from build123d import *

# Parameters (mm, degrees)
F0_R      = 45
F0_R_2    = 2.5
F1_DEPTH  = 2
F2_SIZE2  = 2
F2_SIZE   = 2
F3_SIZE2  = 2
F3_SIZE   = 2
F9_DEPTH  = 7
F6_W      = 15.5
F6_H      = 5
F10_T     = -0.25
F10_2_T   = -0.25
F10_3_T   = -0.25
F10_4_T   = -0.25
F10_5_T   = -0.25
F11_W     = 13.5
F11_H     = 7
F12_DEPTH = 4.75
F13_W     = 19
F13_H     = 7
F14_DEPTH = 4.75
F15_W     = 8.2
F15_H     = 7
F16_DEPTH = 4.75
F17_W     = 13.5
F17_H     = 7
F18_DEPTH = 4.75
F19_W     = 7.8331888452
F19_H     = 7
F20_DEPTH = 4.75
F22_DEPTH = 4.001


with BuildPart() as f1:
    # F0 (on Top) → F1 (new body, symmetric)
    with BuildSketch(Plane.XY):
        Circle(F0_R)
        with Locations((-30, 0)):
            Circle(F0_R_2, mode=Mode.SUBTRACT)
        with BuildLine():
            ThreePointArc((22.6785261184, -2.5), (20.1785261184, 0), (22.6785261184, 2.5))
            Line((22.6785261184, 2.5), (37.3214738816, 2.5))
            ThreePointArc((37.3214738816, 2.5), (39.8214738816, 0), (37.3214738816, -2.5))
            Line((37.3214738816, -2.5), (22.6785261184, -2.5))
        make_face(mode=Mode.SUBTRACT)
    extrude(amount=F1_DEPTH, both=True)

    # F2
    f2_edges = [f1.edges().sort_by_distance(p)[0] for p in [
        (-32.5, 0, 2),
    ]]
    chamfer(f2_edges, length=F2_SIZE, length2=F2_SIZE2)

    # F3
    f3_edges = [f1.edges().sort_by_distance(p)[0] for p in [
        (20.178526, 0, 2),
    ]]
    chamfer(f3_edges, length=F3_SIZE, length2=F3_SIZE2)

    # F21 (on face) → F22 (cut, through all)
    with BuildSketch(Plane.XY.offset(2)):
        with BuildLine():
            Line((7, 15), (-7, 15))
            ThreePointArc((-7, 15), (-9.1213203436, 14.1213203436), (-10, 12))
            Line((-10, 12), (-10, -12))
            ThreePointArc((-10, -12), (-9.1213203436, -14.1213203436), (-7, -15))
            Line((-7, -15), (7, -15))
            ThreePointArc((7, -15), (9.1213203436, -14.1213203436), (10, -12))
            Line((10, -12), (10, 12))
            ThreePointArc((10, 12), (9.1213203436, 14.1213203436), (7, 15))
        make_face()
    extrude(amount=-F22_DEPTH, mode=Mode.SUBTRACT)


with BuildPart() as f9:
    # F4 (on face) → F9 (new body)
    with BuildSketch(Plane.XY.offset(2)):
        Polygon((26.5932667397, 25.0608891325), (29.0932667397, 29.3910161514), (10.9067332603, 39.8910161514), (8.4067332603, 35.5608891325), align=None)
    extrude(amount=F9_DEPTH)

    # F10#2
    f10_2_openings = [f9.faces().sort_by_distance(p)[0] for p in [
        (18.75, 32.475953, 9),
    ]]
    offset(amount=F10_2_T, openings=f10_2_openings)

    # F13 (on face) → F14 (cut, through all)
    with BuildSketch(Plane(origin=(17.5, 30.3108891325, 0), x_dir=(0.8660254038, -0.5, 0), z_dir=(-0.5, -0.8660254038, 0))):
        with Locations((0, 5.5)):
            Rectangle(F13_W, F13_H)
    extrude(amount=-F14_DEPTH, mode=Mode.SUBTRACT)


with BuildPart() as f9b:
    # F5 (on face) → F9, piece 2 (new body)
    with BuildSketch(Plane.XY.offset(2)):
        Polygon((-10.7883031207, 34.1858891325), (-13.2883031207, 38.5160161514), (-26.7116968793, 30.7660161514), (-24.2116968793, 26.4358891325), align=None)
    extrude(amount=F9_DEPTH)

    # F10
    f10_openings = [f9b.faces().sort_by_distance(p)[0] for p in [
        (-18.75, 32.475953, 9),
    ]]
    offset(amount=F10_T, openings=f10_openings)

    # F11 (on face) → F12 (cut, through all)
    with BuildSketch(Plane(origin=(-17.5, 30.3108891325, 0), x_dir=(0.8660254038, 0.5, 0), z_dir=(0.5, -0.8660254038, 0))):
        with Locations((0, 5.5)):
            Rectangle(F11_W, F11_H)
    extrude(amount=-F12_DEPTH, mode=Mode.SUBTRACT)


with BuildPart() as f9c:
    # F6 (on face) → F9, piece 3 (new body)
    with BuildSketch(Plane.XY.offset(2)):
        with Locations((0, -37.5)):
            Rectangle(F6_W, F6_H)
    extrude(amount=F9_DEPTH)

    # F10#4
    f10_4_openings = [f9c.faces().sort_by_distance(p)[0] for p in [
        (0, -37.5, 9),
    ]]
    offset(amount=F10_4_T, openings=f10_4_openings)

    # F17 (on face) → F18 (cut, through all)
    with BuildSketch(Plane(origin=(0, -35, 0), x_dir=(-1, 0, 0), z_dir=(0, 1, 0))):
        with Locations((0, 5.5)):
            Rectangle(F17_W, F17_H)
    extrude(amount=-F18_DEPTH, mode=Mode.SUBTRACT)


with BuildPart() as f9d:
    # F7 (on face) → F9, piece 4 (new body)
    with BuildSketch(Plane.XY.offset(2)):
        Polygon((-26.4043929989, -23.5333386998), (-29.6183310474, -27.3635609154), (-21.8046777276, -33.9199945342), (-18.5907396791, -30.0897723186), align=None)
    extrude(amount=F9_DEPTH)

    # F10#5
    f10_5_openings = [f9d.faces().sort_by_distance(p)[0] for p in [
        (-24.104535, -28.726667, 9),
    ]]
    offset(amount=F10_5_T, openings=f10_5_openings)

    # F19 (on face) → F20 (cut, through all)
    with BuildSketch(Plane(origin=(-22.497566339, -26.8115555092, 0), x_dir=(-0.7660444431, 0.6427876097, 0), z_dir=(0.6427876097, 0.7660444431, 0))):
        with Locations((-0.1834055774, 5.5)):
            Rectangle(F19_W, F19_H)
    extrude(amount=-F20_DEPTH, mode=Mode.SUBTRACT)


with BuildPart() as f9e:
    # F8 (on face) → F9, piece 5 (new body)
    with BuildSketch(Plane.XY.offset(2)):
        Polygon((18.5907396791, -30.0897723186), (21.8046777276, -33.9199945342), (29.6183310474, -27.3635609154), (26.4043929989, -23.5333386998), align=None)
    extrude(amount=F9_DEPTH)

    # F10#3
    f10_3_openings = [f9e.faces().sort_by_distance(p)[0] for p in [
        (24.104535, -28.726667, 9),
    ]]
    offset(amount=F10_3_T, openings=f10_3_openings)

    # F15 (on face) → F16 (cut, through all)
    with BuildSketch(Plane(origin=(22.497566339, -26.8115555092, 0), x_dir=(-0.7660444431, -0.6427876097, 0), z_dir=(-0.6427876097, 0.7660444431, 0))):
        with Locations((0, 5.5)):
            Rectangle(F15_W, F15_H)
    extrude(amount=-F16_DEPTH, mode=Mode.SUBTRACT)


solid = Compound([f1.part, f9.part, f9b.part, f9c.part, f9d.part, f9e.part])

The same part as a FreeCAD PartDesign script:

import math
import FreeCAD as App
import Part
import Sketcher
from FreeCAD import Vector
Q = App.Units.Quantity


def edges_at(feature, points):
    """Names of the edges that pass closest to the given points."""
    edges = feature.Shape.Edges
    near = lambda p: min(range(len(edges)), key=lambda i: edges[i].distToShape(Part.Vertex(*p))[0])
    return sorted({f"Edge{near(p) + 1}" for p in points})


def faces_at(feature, points):
    """Names of the faces that lie closest to the given points."""
    faces = feature.Shape.Faces
    near = lambda p: min(range(len(faces)), key=lambda i: faces[i].distToShape(Part.Vertex(*p))[0])
    return sorted({f"Face{near(p) + 1}" for p in points})

doc = App.newDocument("Part")
body = doc.addObject("PartDesign::Body", "Body")

# Sketch on XY plane
sketch1 = body.newObject("Sketcher::SketchObject", "Sketch")
sketch1.AttachmentSupport = (doc.getObject("XY_Plane"), [""])
sketch1.MapMode = "FlatFace"
sketch1.addGeometry(Part.Circle(Vector(0, 0, 0), Vector(0, 0, 1), 45), False)
sketch1.addGeometry(Part.Circle(Vector(-30, 0, 0), Vector(0, 0, 1), 2.5), False)
sketch1.addGeometry(Part.LineSegment(Vector(37.3, -2.5, 0), Vector(22.7, -2.5, 0)), False)
sketch1.addGeometry(Part.ArcOfCircle(Part.Circle(Vector(22.7, 0, 0), Vector(0, 0, 1), 2.5), math.radians(90), math.radians(270)), False)
sketch1.addGeometry(Part.LineSegment(Vector(22.7, 2.5, 0), Vector(37.3, 2.5, 0)), False)
sketch1.addGeometry(Part.ArcOfCircle(Part.Circle(Vector(37.3, 0, 0), Vector(0, 0, 1), 2.5), math.radians(-90), math.radians(90)), False)
sketch1.addConstraint(Sketcher.Constraint("Tangent", 2, 2, 3, 2))
sketch1.addConstraint(Sketcher.Constraint("Tangent", 3, 1, 4, 1))
sketch1.addConstraint(Sketcher.Constraint("Tangent", 4, 2, 5, 2))
sketch1.addConstraint(Sketcher.Constraint("Tangent", 5, 1, 2, 1))
sketch1.addConstraint(Sketcher.Constraint("Horizontal", 2))
sketch1.addConstraint(Sketcher.Constraint("Horizontal", 4))
sketch1.addConstraint(Sketcher.Constraint("Coincident", 0, 3, -1, 1))
sketch1.addConstraint(Sketcher.Constraint("Equal", 1, 3))
sketch1.addConstraint(Sketcher.Constraint("PointOnObject", 1, 3, -1))
sketch1.addConstraint(Sketcher.Constraint("PointOnObject", 3, 3, -1))
sketch1.addConstraint(Sketcher.Constraint("Diameter", 0, Q("90 mm")))
sketch1.addConstraint(Sketcher.Constraint("Diameter", 1, Q("5 mm")))
sketch1.addConstraint(Sketcher.Constraint("DistanceX", 1, 3, -1, 1, Q("30 mm")))
sketch1.addConstraint(Sketcher.Constraint("DistanceX", 2, 2, 2, 1, Q("14.642948 mm")))
sketch1.addConstraint(Sketcher.Constraint("DistanceX", -1, 1, 3, 3, Q("22.678526 mm")))
pad1 = body.newObject("PartDesign::Pad", "Pad")
pad1.Profile = sketch1
pad1.Length = 4
pad1.Midplane = True
doc.recompute()

chamfer = body.newObject("PartDesign::Chamfer", "Chamfer")
chamfer.Base = (pad1, edges_at(pad1, [(-32.5, 0, 2)]))
chamfer.ChamferType = "Two distances"
chamfer.Size = 2
chamfer.Size2 = 2
doc.recompute()

chamfer2 = body.newObject("PartDesign::Chamfer", "Chamfer001")
chamfer2.Base = (chamfer, edges_at(chamfer, [(20.179, 0, 2)]))
chamfer2.ChamferType = "Two distances"
chamfer2.Size = 2
chamfer2.Size2 = 2

# Sketch on XY plane
sketch2 = body.newObject("Sketcher::SketchObject", "Sketch001")
sketch2.AttachmentSupport = (doc.getObject("XY_Plane"), [""])
sketch2.MapMode = "FlatFace"
sketch2.AttachmentOffset = App.Placement(Vector(0, 0, 2), App.Rotation())
sketch2.addGeometry(Part.LineSegment(Vector(7, 15, 0), Vector(-7, 15, 0)), False)
sketch2.addGeometry(Part.ArcOfCircle(Part.Circle(Vector(-7, 12, 0), Vector(0, 0, 1), 3), math.radians(90), math.radians(180)), False)
sketch2.addGeometry(Part.LineSegment(Vector(-10, 12, 0), Vector(-10, -12, 0)), False)
sketch2.addGeometry(Part.ArcOfCircle(Part.Circle(Vector(-7, -12, 0), Vector(0, 0, 1), 3), math.radians(180), math.radians(270)), False)
sketch2.addGeometry(Part.LineSegment(Vector(-7, -15, 0), Vector(7, -15, 0)), False)
sketch2.addGeometry(Part.ArcOfCircle(Part.Circle(Vector(7, -12, 0), Vector(0, 0, 1), 3), math.radians(-90), math.radians(0)), False)
sketch2.addGeometry(Part.LineSegment(Vector(10, -12, 0), Vector(10, 12, 0)), False)
sketch2.addGeometry(Part.ArcOfCircle(Part.Circle(Vector(7, 12, 0), Vector(0, 0, 1), 3), math.radians(0), math.radians(90)), False)
sketch2.addConstraint(Sketcher.Constraint("Tangent", 0, 2, 1, 1))
sketch2.addConstraint(Sketcher.Constraint("Tangent", 1, 2, 2, 1))
sketch2.addConstraint(Sketcher.Constraint("Tangent", 2, 2, 3, 1))
sketch2.addConstraint(Sketcher.Constraint("Tangent", 3, 2, 4, 1))
sketch2.addConstraint(Sketcher.Constraint("Tangent", 4, 2, 5, 1))
sketch2.addConstraint(Sketcher.Constraint("Tangent", 5, 2, 6, 1))
sketch2.addConstraint(Sketcher.Constraint("Tangent", 6, 2, 7, 1))
sketch2.addConstraint(Sketcher.Constraint("Tangent", 7, 2, 0, 1))
sketch2.addConstraint(Sketcher.Constraint("Horizontal", 0))
sketch2.addConstraint(Sketcher.Constraint("Vertical", 2))
sketch2.addConstraint(Sketcher.Constraint("Horizontal", 4))
sketch2.addConstraint(Sketcher.Constraint("Vertical", 6))
sketch2.addConstraint(Sketcher.Constraint("Equal", 1, 3))
sketch2.addConstraint(Sketcher.Constraint("Equal", 3, 5))
sketch2.addConstraint(Sketcher.Constraint("Equal", 5, 7))
sketch2.addConstraint(Sketcher.Constraint("Symmetric", 1, 3, 5, 3, -1, 1))
sketch2.addConstraint(Sketcher.Constraint("Radius", 1, Q("3 mm")))
sketch2.addConstraint(Sketcher.Constraint("DistanceX", 0, 2, 0, 1, Q("14 mm")))
sketch2.addConstraint(Sketcher.Constraint("DistanceY", 2, 2, 2, 1, Q("24 mm")))
pocket1 = body.newObject("PartDesign::Pocket", "Pocket")
pocket1.Profile = sketch2
pocket1.Type = "ThroughAll"
body2 = doc.addObject("PartDesign::Body", "Body001")

# Sketch on XY plane
sketch3 = body2.newObject("Sketcher::SketchObject", "Sketch002")
sketch3.AttachmentSupport = (doc.getObject("XY_Plane001"), [""])
sketch3.MapMode = "FlatFace"
sketch3.AttachmentOffset = App.Placement(Vector(0, 0, 2), App.Rotation())
sketch3.addGeometry(Part.LineSegment(Vector(26.6, 25.1, 0), Vector(29.1, 29.4, 0)), False)
sketch3.addGeometry(Part.LineSegment(Vector(29.1, 29.4, 0), Vector(10.9, 39.9, 0)), False)
sketch3.addGeometry(Part.LineSegment(Vector(10.9, 39.9, 0), Vector(8.4, 35.6, 0)), False)
sketch3.addGeometry(Part.LineSegment(Vector(8.4, 35.6, 0), Vector(26.6, 25.1, 0)), False)
sketch3.addConstraint(Sketcher.Constraint("Coincident", 0, 2, 1, 1))
sketch3.addConstraint(Sketcher.Constraint("Coincident", 1, 2, 2, 1))
sketch3.addConstraint(Sketcher.Constraint("Coincident", 2, 2, 3, 1))
sketch3.addConstraint(Sketcher.Constraint("Coincident", 3, 2, 0, 1))
sketch3.addConstraint(Sketcher.Constraint("Perpendicular", 0, 1))
sketch3.addConstraint(Sketcher.Constraint("Perpendicular", 1, 2))
sketch3.addConstraint(Sketcher.Constraint("Perpendicular", 2, 3))
sketch3.addConstraint(Sketcher.Constraint("Angle", 0, Q("60 deg")))
sketch3.addConstraint(Sketcher.Constraint("Distance", 0, Q("5 mm")))
sketch3.addConstraint(Sketcher.Constraint("Distance", 1, Q("21 mm")))
sketch3.addConstraint(Sketcher.Constraint("DistanceY", -1, 1, 2, 2, Q("35.560889 mm")))
sketch3.addConstraint(Sketcher.Constraint("DistanceX", -1, 1, 0, 2, Q("29.093267 mm")))
pad2 = body2.newObject("PartDesign::Pad", "Pad001")
pad2.Profile = sketch3
pad2.Length = 7
doc.recompute()

thickness = body2.newObject("PartDesign::Thickness", "Thickness")
thickness.Base = (pad2, faces_at(pad2, [(18.75, 32.476, 9)]))
thickness.Value = 0.25
thickness.Reversed = True
thickness.Join = "Arc"

# Sketch on an angled plane
sketch4 = body2.newObject("Sketcher::SketchObject", "Sketch003")
sketch4.Placement = App.Placement(Vector(17.5, 30.310889, 0), App.Rotation(Vector(0.866025404, -0.5, 0), Vector(0, 0, 1), Vector(-0.5, -0.866025404, 0), "ZXY"))
sketch4.addGeometry(Part.LineSegment(Vector(-10, 9, 0), Vector(-10, 2, 0)), False)
sketch4.addGeometry(Part.LineSegment(Vector(-10, 2, 0), Vector(10, 2, 0)), False)
sketch4.addGeometry(Part.LineSegment(Vector(10, 2, 0), Vector(10, 9, 0)), False)
sketch4.addGeometry(Part.LineSegment(Vector(10, 9, 0), Vector(-10, 9, 0)), False)
sketch4.addConstraint(Sketcher.Constraint("Coincident", 0, 2, 1, 1))
sketch4.addConstraint(Sketcher.Constraint("Coincident", 1, 2, 2, 1))
sketch4.addConstraint(Sketcher.Constraint("Coincident", 2, 2, 3, 1))
sketch4.addConstraint(Sketcher.Constraint("Coincident", 3, 2, 0, 1))
sketch4.addConstraint(Sketcher.Constraint("Vertical", 0))
sketch4.addConstraint(Sketcher.Constraint("Horizontal", 1))
sketch4.addConstraint(Sketcher.Constraint("Vertical", 2))
sketch4.addConstraint(Sketcher.Constraint("Horizontal", 3))
sketch4.addConstraint(Sketcher.Constraint("DistanceX", 1, 1, 1, 2, Q("19 mm")))
sketch4.addConstraint(Sketcher.Constraint("DistanceY", 0, 2, 0, 1, Q("7 mm")))
sketch4.addConstraint(Sketcher.Constraint("DistanceY", -1, 1, 0, 2, Q("2 mm")))
sketch4.addConstraint(Sketcher.Constraint("DistanceX", 0, 2, -1, 1, Q("9.5 mm")))
pocket2 = body2.newObject("PartDesign::Pocket", "Pocket001")
pocket2.Profile = sketch4
pocket2.Length = 4.75
body3 = doc.addObject("PartDesign::Body", "Body002")

# Sketch on XY plane
sketch5 = body3.newObject("Sketcher::SketchObject", "Sketch004")
sketch5.AttachmentSupport = (doc.getObject("XY_Plane002"), [""])
sketch5.MapMode = "FlatFace"
sketch5.AttachmentOffset = App.Placement(Vector(0, 0, 2), App.Rotation())
sketch5.addGeometry(Part.LineSegment(Vector(-10.8, 34.2, 0), Vector(-13.3, 38.5, 0)), False)
sketch5.addGeometry(Part.LineSegment(Vector(-13.3, 38.5, 0), Vector(-26.7, 30.8, 0)), False)
sketch5.addGeometry(Part.LineSegment(Vector(-26.7, 30.8, 0), Vector(-24.2, 26.4, 0)), False)
sketch5.addGeometry(Part.LineSegment(Vector(-24.2, 26.4, 0), Vector(-10.8, 34.2, 0)), False)
sketch5.addConstraint(Sketcher.Constraint("Coincident", 0, 2, 1, 1))
sketch5.addConstraint(Sketcher.Constraint("Coincident", 1, 2, 2, 1))
sketch5.addConstraint(Sketcher.Constraint("Coincident", 2, 2, 3, 1))
sketch5.addConstraint(Sketcher.Constraint("Coincident", 3, 2, 0, 1))
sketch5.addConstraint(Sketcher.Constraint("Perpendicular", 0, 1))
sketch5.addConstraint(Sketcher.Constraint("Perpendicular", 1, 2))
sketch5.addConstraint(Sketcher.Constraint("Perpendicular", 2, 3))
sketch5.addConstraint(Sketcher.Constraint("Angle", 0, Q("120 deg")))
sketch5.addConstraint(Sketcher.Constraint("Distance", 0, Q("5 mm")))
sketch5.addConstraint(Sketcher.Constraint("Distance", 1, Q("15.5 mm")))
sketch5.addConstraint(Sketcher.Constraint("DistanceY", -1, 1, 2, 2, Q("26.435889 mm")))
sketch5.addConstraint(Sketcher.Constraint("DistanceX", 0, 2, -1, 1, Q("13.288303 mm")))
pad3 = body3.newObject("PartDesign::Pad", "Pad002")
pad3.Profile = sketch5
pad3.Length = 7
doc.recompute()

thickness2 = body3.newObject("PartDesign::Thickness", "Thickness001")
thickness2.Base = (pad3, faces_at(pad3, [(-18.75, 32.476, 9)]))
thickness2.Value = 0.25
thickness2.Reversed = True
thickness2.Join = "Arc"

# Sketch on an angled plane
sketch6 = body3.newObject("Sketcher::SketchObject", "Sketch005")
sketch6.Placement = App.Placement(Vector(-17.5, 30.310889, 0), App.Rotation(Vector(0.866025404, 0.5, 0), Vector(0, 0, 1), Vector(0.5, -0.866025404, 0), "ZXY"))
sketch6.addGeometry(Part.LineSegment(Vector(-7, 9, 0), Vector(-7, 2, 0)), False)
sketch6.addGeometry(Part.LineSegment(Vector(-7, 2, 0), Vector(7, 2, 0)), False)
sketch6.addGeometry(Part.LineSegment(Vector(7, 2, 0), Vector(7, 9, 0)), False)
sketch6.addGeometry(Part.LineSegment(Vector(7, 9, 0), Vector(-7, 9, 0)), False)
sketch6.addConstraint(Sketcher.Constraint("Coincident", 0, 2, 1, 1))
sketch6.addConstraint(Sketcher.Constraint("Coincident", 1, 2, 2, 1))
sketch6.addConstraint(Sketcher.Constraint("Coincident", 2, 2, 3, 1))
sketch6.addConstraint(Sketcher.Constraint("Coincident", 3, 2, 0, 1))
sketch6.addConstraint(Sketcher.Constraint("Vertical", 0))
sketch6.addConstraint(Sketcher.Constraint("Horizontal", 1))
sketch6.addConstraint(Sketcher.Constraint("Vertical", 2))
sketch6.addConstraint(Sketcher.Constraint("Horizontal", 3))
sketch6.addConstraint(Sketcher.Constraint("DistanceY", 0, 2, 0, 1, Q("7 mm")))
sketch6.addConstraint(Sketcher.Constraint("DistanceX", 1, 1, 1, 2, Q("13.5 mm")))
sketch6.addConstraint(Sketcher.Constraint("DistanceY", -1, 1, 0, 2, Q("2 mm")))
sketch6.addConstraint(Sketcher.Constraint("DistanceX", 0, 2, -1, 1, Q("6.75 mm")))
pocket3 = body3.newObject("PartDesign::Pocket", "Pocket002")
pocket3.Profile = sketch6
pocket3.Length = 4.75
body4 = doc.addObject("PartDesign::Body", "Body003")

# Sketch on XY plane
sketch7 = body4.newObject("Sketcher::SketchObject", "Sketch006")
sketch7.AttachmentSupport = (doc.getObject("XY_Plane003"), [""])
sketch7.MapMode = "FlatFace"
sketch7.AttachmentOffset = App.Placement(Vector(0, 0, 2), App.Rotation())
sketch7.addGeometry(Part.LineSegment(Vector(-8, -35, 0), Vector(-8, -40, 0)), False)
sketch7.addGeometry(Part.LineSegment(Vector(-8, -40, 0), Vector(8, -40, 0)), False)
sketch7.addGeometry(Part.LineSegment(Vector(8, -40, 0), Vector(8, -35, 0)), False)
sketch7.addGeometry(Part.LineSegment(Vector(8, -35, 0), Vector(-8, -35, 0)), False)
sketch7.addConstraint(Sketcher.Constraint("Coincident", 0, 2, 1, 1))
sketch7.addConstraint(Sketcher.Constraint("Coincident", 1, 2, 2, 1))
sketch7.addConstraint(Sketcher.Constraint("Coincident", 2, 2, 3, 1))
sketch7.addConstraint(Sketcher.Constraint("Coincident", 3, 2, 0, 1))
sketch7.addConstraint(Sketcher.Constraint("Vertical", 0))
sketch7.addConstraint(Sketcher.Constraint("Horizontal", 1))
sketch7.addConstraint(Sketcher.Constraint("Vertical", 2))
sketch7.addConstraint(Sketcher.Constraint("Horizontal", 3))
sketch7.addConstraint(Sketcher.Constraint("DistanceY", 0, 2, 0, 1, Q("5 mm")))
sketch7.addConstraint(Sketcher.Constraint("DistanceX", 1, 1, 1, 2, Q("15.5 mm")))
sketch7.addConstraint(Sketcher.Constraint("DistanceY", 0, 2, -1, 1, Q("40 mm")))
sketch7.addConstraint(Sketcher.Constraint("DistanceX", 0, 2, -1, 1, Q("7.75 mm")))
pad4 = body4.newObject("PartDesign::Pad", "Pad003")
pad4.Profile = sketch7
pad4.Length = 7
doc.recompute()

thickness3 = body4.newObject("PartDesign::Thickness", "Thickness002")
thickness3.Base = (pad4, faces_at(pad4, [(0, -37.5, 9)]))
thickness3.Value = 0.25
thickness3.Reversed = True
thickness3.Join = "Arc"

# Sketch on XZ plane
sketch8 = body4.newObject("Sketcher::SketchObject", "Sketch007")
sketch8.AttachmentSupport = (doc.getObject("XZ_Plane003"), [""])
sketch8.MapMode = "FlatFace"
sketch8.AttachmentOffset = App.Placement(Vector(0, 0, 35), App.Rotation())
sketch8.addGeometry(Part.LineSegment(Vector(7, 9, 0), Vector(7, 2, 0)), False)
sketch8.addGeometry(Part.LineSegment(Vector(7, 2, 0), Vector(-7, 2, 0)), False)
sketch8.addGeometry(Part.LineSegment(Vector(-7, 2, 0), Vector(-7, 9, 0)), False)
sketch8.addGeometry(Part.LineSegment(Vector(-7, 9, 0), Vector(7, 9, 0)), False)
sketch8.addConstraint(Sketcher.Constraint("Coincident", 0, 2, 1, 1))
sketch8.addConstraint(Sketcher.Constraint("Coincident", 1, 2, 2, 1))
sketch8.addConstraint(Sketcher.Constraint("Coincident", 2, 2, 3, 1))
sketch8.addConstraint(Sketcher.Constraint("Coincident", 3, 2, 0, 1))
sketch8.addConstraint(Sketcher.Constraint("Vertical", 0))
sketch8.addConstraint(Sketcher.Constraint("Horizontal", 1))
sketch8.addConstraint(Sketcher.Constraint("Vertical", 2))
sketch8.addConstraint(Sketcher.Constraint("Horizontal", 3))
sketch8.addConstraint(Sketcher.Constraint("DistanceY", 0, 2, 0, 1, Q("7 mm")))
sketch8.addConstraint(Sketcher.Constraint("DistanceX", 1, 2, 1, 1, Q("13.5 mm")))
sketch8.addConstraint(Sketcher.Constraint("DistanceY", -1, 1, 0, 2, Q("2 mm")))
sketch8.addConstraint(Sketcher.Constraint("DistanceX", -1, 1, 0, 2, Q("6.75 mm")))
pocket4 = body4.newObject("PartDesign::Pocket", "Pocket003")
pocket4.Profile = sketch8
pocket4.Length = 4.75
pocket4.Reversed = True
body5 = doc.addObject("PartDesign::Body", "Body004")

# Sketch on XY plane
sketch9 = body5.newObject("Sketcher::SketchObject", "Sketch008")
sketch9.AttachmentSupport = (doc.getObject("XY_Plane004"), [""])
sketch9.MapMode = "FlatFace"
sketch9.AttachmentOffset = App.Placement(Vector(0, 0, 2), App.Rotation())
sketch9.addGeometry(Part.LineSegment(Vector(-26.4, -23.5, 0), Vector(-29.6, -27.4, 0)), False)
sketch9.addGeometry(Part.LineSegment(Vector(-29.6, -27.4, 0), Vector(-21.8, -33.9, 0)), False)
sketch9.addGeometry(Part.LineSegment(Vector(-21.8, -33.9, 0), Vector(-18.6, -30.1, 0)), False)
sketch9.addGeometry(Part.LineSegment(Vector(-18.6, -30.1, 0), Vector(-26.4, -23.5, 0)), False)
sketch9.addConstraint(Sketcher.Constraint("Coincident", 0, 2, 1, 1))
sketch9.addConstraint(Sketcher.Constraint("Coincident", 1, 2, 2, 1))
sketch9.addConstraint(Sketcher.Constraint("Coincident", 2, 2, 3, 1))
sketch9.addConstraint(Sketcher.Constraint("Coincident", 3, 2, 0, 1))
sketch9.addConstraint(Sketcher.Constraint("Perpendicular", 0, 1))
sketch9.addConstraint(Sketcher.Constraint("Perpendicular", 1, 2))
sketch9.addConstraint(Sketcher.Constraint("Perpendicular", 2, 3))
sketch9.addConstraint(Sketcher.Constraint("Angle", 0, Q("-130 deg")))
sketch9.addConstraint(Sketcher.Constraint("Distance", 0, Q("5 mm")))
sketch9.addConstraint(Sketcher.Constraint("Distance", 1, Q("10.2 mm")))
sketch9.addConstraint(Sketcher.Constraint("DistanceX", 0, 2, -1, 1, Q("29.618331 mm")))
sketch9.addConstraint(Sketcher.Constraint("DistanceY", 0, 2, -1, 1, Q("27.363561 mm")))
pad5 = body5.newObject("PartDesign::Pad", "Pad004")
pad5.Profile = sketch9
pad5.Length = 7
doc.recompute()

thickness4 = body5.newObject("PartDesign::Thickness", "Thickness003")
thickness4.Base = (pad5, faces_at(pad5, [(-24.105, -28.727, 9)]))
thickness4.Value = 0.25
thickness4.Reversed = True
thickness4.Join = "Arc"

# Sketch on an angled plane
sketch10 = body5.newObject("Sketcher::SketchObject", "Sketch009")
sketch10.Placement = App.Placement(Vector(-22.497566, -26.811556, 0), App.Rotation(Vector(-0.766044443, 0.64278761, 0), Vector(0, 0, 1), Vector(0.64278761, 0.766044443, 0), "ZXY"))
sketch10.addGeometry(Part.LineSegment(Vector(-4, 9, 0), Vector(-4, 2, 0)), False)
sketch10.addGeometry(Part.LineSegment(Vector(-4, 2, 0), Vector(4, 2, 0)), False)
sketch10.addGeometry(Part.LineSegment(Vector(4, 2, 0), Vector(4, 9, 0)), False)
sketch10.addGeometry(Part.LineSegment(Vector(4, 9, 0), Vector(-4, 9, 0)), False)
sketch10.addConstraint(Sketcher.Constraint("Coincident", 0, 2, 1, 1))
sketch10.addConstraint(Sketcher.Constraint("Coincident", 1, 2, 2, 1))
sketch10.addConstraint(Sketcher.Constraint("Coincident", 2, 2, 3, 1))
sketch10.addConstraint(Sketcher.Constraint("Coincident", 3, 2, 0, 1))
sketch10.addConstraint(Sketcher.Constraint("Vertical", 0))
sketch10.addConstraint(Sketcher.Constraint("Horizontal", 1))
sketch10.addConstraint(Sketcher.Constraint("Vertical", 2))
sketch10.addConstraint(Sketcher.Constraint("Horizontal", 3))
sketch10.addConstraint(Sketcher.Constraint("DistanceY", 0, 2, 0, 1, Q("7 mm")))
sketch10.addConstraint(Sketcher.Constraint("DistanceY", -1, 1, 0, 2, Q("2 mm")))
sketch10.addConstraint(Sketcher.Constraint("DistanceX", 0, 2, -1, 1, Q("4.1 mm")))
sketch10.addConstraint(Sketcher.Constraint("DistanceX", 1, 1, 1, 2, Q("7.833189 mm")))
pocket5 = body5.newObject("PartDesign::Pocket", "Pocket004")
pocket5.Profile = sketch10
pocket5.Length = 4.75
body6 = doc.addObject("PartDesign::Body", "Body005")

# Sketch on XY plane
sketch11 = body6.newObject("Sketcher::SketchObject", "Sketch010")
sketch11.AttachmentSupport = (doc.getObject("XY_Plane005"), [""])
sketch11.MapMode = "FlatFace"
sketch11.AttachmentOffset = App.Placement(Vector(0, 0, 2), App.Rotation())
sketch11.addGeometry(Part.LineSegment(Vector(18.6, -30.1, 0), Vector(21.8, -33.9, 0)), False)
sketch11.addGeometry(Part.LineSegment(Vector(21.8, -33.9, 0), Vector(29.6, -27.4, 0)), False)
sketch11.addGeometry(Part.LineSegment(Vector(29.6, -27.4, 0), Vector(26.4, -23.5, 0)), False)
sketch11.addGeometry(Part.LineSegment(Vector(26.4, -23.5, 0), Vector(18.6, -30.1, 0)), False)
sketch11.addConstraint(Sketcher.Constraint("Coincident", 0, 2, 1, 1))
sketch11.addConstraint(Sketcher.Constraint("Coincident", 1, 2, 2, 1))
sketch11.addConstraint(Sketcher.Constraint("Coincident", 2, 2, 3, 1))
sketch11.addConstraint(Sketcher.Constraint("Coincident", 3, 2, 0, 1))
sketch11.addConstraint(Sketcher.Constraint("Perpendicular", 0, 1))
sketch11.addConstraint(Sketcher.Constraint("Perpendicular", 1, 2))
sketch11.addConstraint(Sketcher.Constraint("Perpendicular", 2, 3))
sketch11.addConstraint(Sketcher.Constraint("Angle", 0, Q("-50 deg")))
sketch11.addConstraint(Sketcher.Constraint("Distance", 0, Q("5 mm")))
sketch11.addConstraint(Sketcher.Constraint("Distance", 1, Q("10.2 mm")))
sketch11.addConstraint(Sketcher.Constraint("DistanceX", -1, 1, 1, 2, Q("29.618331 mm")))
sketch11.addConstraint(Sketcher.Constraint("DistanceY", 1, 2, -1, 1, Q("27.363561 mm")))
pad6 = body6.newObject("PartDesign::Pad", "Pad005")
pad6.Profile = sketch11
pad6.Length = 7
doc.recompute()

thickness5 = body6.newObject("PartDesign::Thickness", "Thickness004")
thickness5.Base = (pad6, faces_at(pad6, [(24.105, -28.727, 9)]))
thickness5.Value = 0.25
thickness5.Reversed = True
thickness5.Join = "Arc"

# Sketch on an angled plane
sketch12 = body6.newObject("Sketcher::SketchObject", "Sketch011")
sketch12.Placement = App.Placement(Vector(22.497566, -26.811556, 0), App.Rotation(Vector(-0.766044443, -0.64278761, 0), Vector(0, 0, 1), Vector(-0.64278761, 0.766044443, 0), "ZXY"))
sketch12.addGeometry(Part.LineSegment(Vector(-4, 9, 0), Vector(-4, 2, 0)), False)
sketch12.addGeometry(Part.LineSegment(Vector(-4, 2, 0), Vector(4, 2, 0)), False)
sketch12.addGeometry(Part.LineSegment(Vector(4, 2, 0), Vector(4, 9, 0)), False)
sketch12.addGeometry(Part.LineSegment(Vector(4, 9, 0), Vector(-4, 9, 0)), False)
sketch12.addConstraint(Sketcher.Constraint("Coincident", 0, 2, 1, 1))
sketch12.addConstraint(Sketcher.Constraint("Coincident", 1, 2, 2, 1))
sketch12.addConstraint(Sketcher.Constraint("Coincident", 2, 2, 3, 1))
sketch12.addConstraint(Sketcher.Constraint("Coincident", 3, 2, 0, 1))
sketch12.addConstraint(Sketcher.Constraint("Vertical", 0))
sketch12.addConstraint(Sketcher.Constraint("Horizontal", 1))
sketch12.addConstraint(Sketcher.Constraint("Vertical", 2))
sketch12.addConstraint(Sketcher.Constraint("Horizontal", 3))
sketch12.addConstraint(Sketcher.Constraint("DistanceY", 0, 2, 0, 1, Q("7 mm")))
sketch12.addConstraint(Sketcher.Constraint("DistanceX", 1, 1, 1, 2, Q("8.2 mm")))
sketch12.addConstraint(Sketcher.Constraint("DistanceY", -1, 1, 0, 2, Q("2 mm")))
sketch12.addConstraint(Sketcher.Constraint("DistanceX", 0, 2, -1, 1, Q("4.1 mm")))
pocket6 = body6.newObject("PartDesign::Pocket", "Pocket005")
pocket6.Profile = sketch12
pocket6.Length = 4.75

doc.recompute()
